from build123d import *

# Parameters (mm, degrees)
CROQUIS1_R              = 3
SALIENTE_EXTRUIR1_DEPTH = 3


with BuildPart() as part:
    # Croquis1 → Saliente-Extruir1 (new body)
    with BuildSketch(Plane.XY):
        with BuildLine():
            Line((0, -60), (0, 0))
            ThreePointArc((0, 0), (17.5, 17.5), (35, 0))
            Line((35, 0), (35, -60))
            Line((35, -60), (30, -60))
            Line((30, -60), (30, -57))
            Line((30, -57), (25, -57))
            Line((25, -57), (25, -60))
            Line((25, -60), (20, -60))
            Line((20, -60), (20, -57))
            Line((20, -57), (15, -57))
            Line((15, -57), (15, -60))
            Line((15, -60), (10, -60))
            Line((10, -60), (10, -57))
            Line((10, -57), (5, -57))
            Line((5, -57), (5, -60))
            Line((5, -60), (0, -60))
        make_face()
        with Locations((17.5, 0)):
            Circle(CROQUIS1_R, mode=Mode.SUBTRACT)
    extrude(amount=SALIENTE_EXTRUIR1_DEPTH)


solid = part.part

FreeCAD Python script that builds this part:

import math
import FreeCAD as App
import Part
import Sketcher
from FreeCAD import Vector

doc = App.newDocument("Part")
body = doc.addObject("PartDesign::Body", "Body")

sketch1 = body.newObject("Sketcher::SketchObject", "Sketch")
sketch1.AttachmentSupport = (doc.getObject("XY_Plane"), [""])
sketch1.MapMode = "FlatFace"
sketch1.addGeometry([
    Part.LineSegment(Vector(0, 0, 0), Vector(0, -60, 0)),
    Part.LineSegment(Vector(0, -60, 0), Vector(5, -60, 0)),
    Part.LineSegment(Vector(5, -60, 0), Vector(5, -57, 0)),
    Part.LineSegment(Vector(5, -57, 0), Vector(10, -57, 0)),
    Part.LineSegment(Vector(10, -57, 0), Vector(10, -60, 0)),
    Part.LineSegment(Vector(10, -60, 0), Vector(15, -60, 0)),
    Part.LineSegment(Vector(15, -60, 0), Vector(15, -57, 0)),
    Part.LineSegment(Vector(15, -57, 0), Vector(20, -57, 0)),
    Part.LineSegment(Vector(20, -57, 0), Vector(20, -60, 0)),
    Part.LineSegment(Vector(20, -60, 0), Vector(25, -60, 0)),
    Part.LineSegment(Vector(25, -60, 0), Vector(25, -57, 0)),
    Part.LineSegment(Vector(25, -57, 0), Vector(30, -57, 0)),
    Part.LineSegment(Vector(30, -57, 0), Vector(30, -60, 0)),
    Part.LineSegment(Vector(30, -60, 0), Vector(35, -60, 0)),
    Part.LineSegment(Vector(35, -60, 0), Vector(35, 0, 0)),
    Part.ArcOfCircle(Part.Circle(Vector(17.5, 0, 0), Vector(0, 0, 1), 17.5), math.radians(0), math.radians(180)),
    Part.Circle(Vector(17.5, 0, 0), Vector(0, 0, 1), 3),
], False)
sketch1.addConstraint([
    Sketcher.Constraint("Coincident", 0, 2, 1, 1),
    Sketcher.Constraint("Coincident", 1, 2, 2, 1),
    Sketcher.Constraint("Coincident", 2, 2, 3, 1),
    Sketcher.Constraint("Coincident", 3, 2, 4, 1),
    Sketcher.Constraint("Coincident", 4, 2, 5, 1),
    Sketcher.Constraint("Coincident", 5, 2, 6, 1),
    Sketcher.Constraint("Coincident", 6, 2, 7, 1),
    Sketcher.Constraint("Coincident", 7, 2, 8, 1),
    Sketcher.Constraint("Coincident", 8, 2, 9, 1),
    Sketcher.Constraint("Coincident", 9, 2, 10, 1),
    Sketcher.Constraint("Coincident", 10, 2, 11, 1),
    Sketcher.Constraint("Coincident", 11, 2, 12, 1),
    Sketcher.Constraint("Coincident", 12, 2, 13, 1),
    Sketcher.Constraint("Coincident", 13, 2, 14, 1),
    Sketcher.Constraint("Tangent", 14, 2, 15, 1),
    Sketcher.Constraint("Tangent", 15, 2, 0, 1),
    Sketcher.Constraint("Vertical", 0),
    Sketcher.Constraint("Horizontal", 1),
    Sketcher.Constraint("Vertical", 2),
    Sketcher.Constraint("Horizontal", 3),
    Sketcher.Constraint("Vertical", 4),
    Sketcher.Constraint("Horizontal", 5),
    Sketcher.Constraint("Vertical", 6),
    Sketcher.Constraint("Horizontal", 7),
    Sketcher.Constraint("Vertical", 8),
    Sketcher.Constraint("Horizontal", 9),
    Sketcher.Constraint("Vertical", 10),
    Sketcher.Constraint("Horizontal", 11),
    Sketcher.Constraint("Vertical", 12),
    Sketcher.Constraint("Horizontal", 13),
    Sketcher.Constraint("Vertical", 14),
    Sketcher.Constraint("Coincident", 15, 2, -1, 1),
    Sketcher.Constraint("Coincident", 16, 3, 15, 3),
    Sketcher.Constraint("Horizontal", 1, 2, 4, 2),
    Sketcher.Constraint("Horizontal", 3, 2, 6, 2),
    Sketcher.Constraint("Horizontal", 5, 2, 8, 2),
    Sketcher.Constraint("Horizontal", 7, 2, 10, 2),
    Sketcher.Constraint("Horizontal", 9, 2, 12, 2),
    Sketcher.Constraint("Equal", 1, 3),
    Sketcher.Constraint("Equal", 3, 5),
    Sketcher.Constraint("Equal", 5, 7),
    Sketcher.Constraint("Equal", 7, 9),
    Sketcher.Constraint("Equal", 9, 11),
    Sketcher.Constraint("Equal", 11, 13),
    Sketcher.Constraint("Diameter", 16, 6.0),
    Sketcher.Constraint("Radius", 15, 17.5),
    Sketcher.Constraint("DistanceY", 0, 2, 0, 1, 60.0),
    Sketcher.Constraint("DistanceY", 2, 1, 2, 2, 3.0),
])
pad1 = body.newObject("PartDesign::Pad", "Pad")
pad1.Profile = sketch1
pad1.Length = 3

doc.recompute()
